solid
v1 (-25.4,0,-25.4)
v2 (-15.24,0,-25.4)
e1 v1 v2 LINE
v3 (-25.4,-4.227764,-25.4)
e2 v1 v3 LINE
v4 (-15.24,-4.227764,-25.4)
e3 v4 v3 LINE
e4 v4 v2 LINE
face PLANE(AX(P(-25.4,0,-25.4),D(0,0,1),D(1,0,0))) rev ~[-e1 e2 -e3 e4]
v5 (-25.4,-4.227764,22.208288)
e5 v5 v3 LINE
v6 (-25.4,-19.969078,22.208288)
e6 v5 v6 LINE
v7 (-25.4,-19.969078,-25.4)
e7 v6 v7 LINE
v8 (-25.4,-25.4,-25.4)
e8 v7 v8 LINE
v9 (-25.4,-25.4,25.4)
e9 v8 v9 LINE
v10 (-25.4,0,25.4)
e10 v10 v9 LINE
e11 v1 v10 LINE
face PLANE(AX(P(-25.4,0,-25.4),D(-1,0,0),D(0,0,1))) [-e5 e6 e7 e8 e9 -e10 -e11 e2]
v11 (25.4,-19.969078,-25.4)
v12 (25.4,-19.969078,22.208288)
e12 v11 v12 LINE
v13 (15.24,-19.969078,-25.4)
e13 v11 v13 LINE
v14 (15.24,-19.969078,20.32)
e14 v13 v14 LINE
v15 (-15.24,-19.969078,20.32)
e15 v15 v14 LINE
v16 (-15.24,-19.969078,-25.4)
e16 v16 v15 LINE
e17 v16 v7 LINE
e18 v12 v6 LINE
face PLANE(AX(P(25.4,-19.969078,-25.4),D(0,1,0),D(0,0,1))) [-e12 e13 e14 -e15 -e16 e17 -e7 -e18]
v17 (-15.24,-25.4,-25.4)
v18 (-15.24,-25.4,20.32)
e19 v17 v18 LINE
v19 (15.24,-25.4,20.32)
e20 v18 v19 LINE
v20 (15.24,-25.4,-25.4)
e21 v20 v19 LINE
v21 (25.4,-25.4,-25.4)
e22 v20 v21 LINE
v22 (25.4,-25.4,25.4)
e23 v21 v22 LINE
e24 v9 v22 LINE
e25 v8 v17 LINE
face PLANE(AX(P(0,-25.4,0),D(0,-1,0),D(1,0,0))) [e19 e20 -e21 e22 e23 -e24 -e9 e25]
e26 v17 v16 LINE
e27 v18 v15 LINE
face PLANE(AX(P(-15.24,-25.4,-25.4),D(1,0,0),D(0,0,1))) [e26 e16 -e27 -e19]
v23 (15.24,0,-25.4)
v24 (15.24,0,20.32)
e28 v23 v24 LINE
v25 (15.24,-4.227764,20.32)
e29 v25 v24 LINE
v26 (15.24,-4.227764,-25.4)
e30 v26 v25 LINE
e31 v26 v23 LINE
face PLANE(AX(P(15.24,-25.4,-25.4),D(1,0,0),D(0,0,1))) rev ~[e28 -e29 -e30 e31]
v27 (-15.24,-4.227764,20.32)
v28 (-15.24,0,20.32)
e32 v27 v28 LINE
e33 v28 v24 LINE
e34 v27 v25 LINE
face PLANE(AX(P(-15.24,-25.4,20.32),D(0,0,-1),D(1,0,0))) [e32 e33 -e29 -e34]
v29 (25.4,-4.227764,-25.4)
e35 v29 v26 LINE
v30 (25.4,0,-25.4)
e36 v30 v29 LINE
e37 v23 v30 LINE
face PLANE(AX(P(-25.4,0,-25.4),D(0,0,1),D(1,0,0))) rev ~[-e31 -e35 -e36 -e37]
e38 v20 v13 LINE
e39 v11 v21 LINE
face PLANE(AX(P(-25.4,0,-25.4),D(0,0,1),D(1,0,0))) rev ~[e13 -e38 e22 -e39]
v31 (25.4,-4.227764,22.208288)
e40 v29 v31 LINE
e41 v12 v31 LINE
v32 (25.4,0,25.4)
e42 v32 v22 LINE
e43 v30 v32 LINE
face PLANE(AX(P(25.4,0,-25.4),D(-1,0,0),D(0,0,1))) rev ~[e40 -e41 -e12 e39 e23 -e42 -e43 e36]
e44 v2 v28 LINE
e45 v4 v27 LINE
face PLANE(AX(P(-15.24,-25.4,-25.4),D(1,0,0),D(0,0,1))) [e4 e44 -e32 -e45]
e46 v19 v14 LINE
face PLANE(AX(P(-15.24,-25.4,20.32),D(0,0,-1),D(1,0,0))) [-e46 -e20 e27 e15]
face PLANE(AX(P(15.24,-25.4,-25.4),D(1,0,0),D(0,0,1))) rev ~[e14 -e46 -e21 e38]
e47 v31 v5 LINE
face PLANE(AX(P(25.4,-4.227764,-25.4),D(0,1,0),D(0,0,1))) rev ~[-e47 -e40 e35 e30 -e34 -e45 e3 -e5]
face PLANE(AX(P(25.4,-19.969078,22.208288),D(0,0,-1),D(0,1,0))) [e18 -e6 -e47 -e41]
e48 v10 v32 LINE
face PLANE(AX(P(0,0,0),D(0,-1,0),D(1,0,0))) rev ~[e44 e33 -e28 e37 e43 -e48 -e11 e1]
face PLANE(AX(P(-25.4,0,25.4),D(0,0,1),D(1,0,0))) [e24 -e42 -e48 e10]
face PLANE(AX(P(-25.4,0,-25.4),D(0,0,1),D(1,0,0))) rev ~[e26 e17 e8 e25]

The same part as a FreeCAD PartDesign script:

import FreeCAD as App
import Part
import Sketcher
Q = App.Units.Quantity

doc = App.newDocument("Part")
body = doc.addObject("PartDesign::Body", "Body")

# Sketch on XZ plane
sketch1 = body.newObject("Sketcher::SketchObject", "Sketch")
sketch1.AttachmentSupport = (doc.getObject("XZ_Plane"), [""])
sketch1.MapMode = "FlatFace"
sketch1.addGeometry([
    Part.LineSegment(App.Vector(-25, 25, 0), App.Vector(-25, -25, 0)),
    Part.LineSegment(App.Vector(-25, -25, 0), App.Vector(25, -25, 0)),
    Part.LineSegment(App.Vector(25, -25, 0), App.Vector(25, 25, 0)),
    Part.LineSegment(App.Vector(25, 25, 0), App.Vector(-25, 25, 0)),
], False)
sketch1.addConstraint([
    Sketcher.Constraint("Coincident", 0, 2, 1, 1),
    Sketcher.Constraint("Coincident", 1, 2, 2, 1),
    Sketcher.Constraint("Coincident", 2, 2, 3, 1),
    Sketcher.Constraint("Coincident", 3, 2, 0, 1),
    Sketcher.Constraint("Vertical", 0),
    Sketcher.Constraint("Horizontal", 1),
    Sketcher.Constraint("Vertical", 2),
    Sketcher.Constraint("Horizontal", 3),
    Sketcher.Constraint("Symmetric", 0, 2, 2, 2, -1, 1),
    Sketcher.Constraint("Equal", 3, 0),
    Sketcher.Constraint("DistanceX", 1, 1, 1, 2, Q("2 in")),
])
pad1 = body.newObject("PartDesign::Pad", "Pad")
pad1.Profile = sketch1
pad1.Length = Q("1 in")

# Sketch on XZ plane
sketch2 = body.newObject("Sketcher::SketchObject", "Sketch001")
sketch2.AttachmentSupport = (doc.getObject("XZ_Plane"), [""])
sketch2.MapMode = "FlatFace"
sketch2.AttachmentOffset = App.Placement(App.Vector(0, 0, 1 * 25.4), App.Rotation())
sketch2.addGeometry([
    Part.LineSegment(App.Vector(-15, 20, 0), App.Vector(-15, -25, 0)),
    Part.LineSegment(App.Vector(-15, -25, 0), App.Vector(15, -25, 0)),
    Part.LineSegment(App.Vector(15, -25, 0), App.Vector(15, 20, 0)),
    Part.LineSegment(App.Vector(15, 20, 0), App.Vector(-15, 20, 0)),
], False)
sketch2.addConstraint([
    Sketcher.Constraint("Coincident", 0, 2, 1, 1),
    Sketcher.Constraint("Coincident", 1, 2, 2, 1),
    Sketcher.Constraint("Coincident", 2, 2, 3, 1),
    Sketcher.Constraint("Coincident", 3, 2, 0, 1),
    Sketcher.Constraint("Vertical", 0),
    Sketcher.Constraint("Horizontal", 1),
    Sketcher.Constraint("Vertical", 2),
    Sketcher.Constraint("Horizontal", 3),
    Sketcher.Constraint("DistanceX", 1, 1, 1, 2, Q("1.2 in")),
    Sketcher.Constraint("DistanceY", 0, 2, 0, 1, Q("1.8 in")),
    Sketcher.Constraint("DistanceY", 0, 2, -1, 1, Q("1 in")),
    Sketcher.Constraint("DistanceX", 0, 2, -1, 1, Q("0.6 in")),
])
pocket1 = body.newObject("PartDesign::Pocket", "Pocket")
pocket1.Profile = sketch2
pocket1.Type = "ThroughAll"

# Sketch on YZ plane
sketch3 = body.newObject("Sketcher::SketchObject", "Sketch002")
sketch3.AttachmentSupport = (doc.getObject("YZ_Plane"), [""])
sketch3.MapMode = "FlatFace"
sketch3.AttachmentOffset = App.Placement(App.Vector(0, 0, 1 * 25.4), App.Rotation())
sketch3.addGeometry([
    Part.LineSegment(App.Vector(-20, 22, 0), App.Vector(-20, -25, 0)),
    Part.LineSegment(App.Vector(-20, -25, 0), App.Vector(-4, -25, 0)),
    Part.LineSegment(App.Vector(-4, -25, 0), App.Vector(-4, 22, 0)),
    Part.LineSegment(App.Vector(-4, 22, 0), App.Vector(-20, 22, 0)),
], False)
sketch3.addConstraint([
    Sketcher.Constraint("Coincident", 0, 2, 1, 1),
    Sketcher.Constraint("Coincident", 1, 2, 2, 1),
    Sketcher.Constraint("Coincident", 2, 2, 3, 1),
    Sketcher.Constraint("Coincident", 3, 2, 0, 1),
    Sketcher.Constraint("Vertical", 0),
    Sketcher.Constraint("Horizontal", 1),
    Sketcher.Constraint("Vertical", 2),
    Sketcher.Constraint("Horizontal", 3),
    Sketcher.Constraint("DistanceY", 0, 2, -1, 1, Q("1 in")),
    Sketcher.Constraint("DistanceY", 0, 2, 0, 1, 47.608288),
    Sketcher.Constraint("DistanceX", 1, 1, 1, 2, 15.741314),
    Sketcher.Constraint("DistanceX", 0, 2, -1, 1, 19.969078),
])
pocket2 = body.newObject("PartDesign::Pocket", "Pocket001")
pocket2.Profile = sketch3
pocket2.Type = "ThroughAll"

doc.recompute()
